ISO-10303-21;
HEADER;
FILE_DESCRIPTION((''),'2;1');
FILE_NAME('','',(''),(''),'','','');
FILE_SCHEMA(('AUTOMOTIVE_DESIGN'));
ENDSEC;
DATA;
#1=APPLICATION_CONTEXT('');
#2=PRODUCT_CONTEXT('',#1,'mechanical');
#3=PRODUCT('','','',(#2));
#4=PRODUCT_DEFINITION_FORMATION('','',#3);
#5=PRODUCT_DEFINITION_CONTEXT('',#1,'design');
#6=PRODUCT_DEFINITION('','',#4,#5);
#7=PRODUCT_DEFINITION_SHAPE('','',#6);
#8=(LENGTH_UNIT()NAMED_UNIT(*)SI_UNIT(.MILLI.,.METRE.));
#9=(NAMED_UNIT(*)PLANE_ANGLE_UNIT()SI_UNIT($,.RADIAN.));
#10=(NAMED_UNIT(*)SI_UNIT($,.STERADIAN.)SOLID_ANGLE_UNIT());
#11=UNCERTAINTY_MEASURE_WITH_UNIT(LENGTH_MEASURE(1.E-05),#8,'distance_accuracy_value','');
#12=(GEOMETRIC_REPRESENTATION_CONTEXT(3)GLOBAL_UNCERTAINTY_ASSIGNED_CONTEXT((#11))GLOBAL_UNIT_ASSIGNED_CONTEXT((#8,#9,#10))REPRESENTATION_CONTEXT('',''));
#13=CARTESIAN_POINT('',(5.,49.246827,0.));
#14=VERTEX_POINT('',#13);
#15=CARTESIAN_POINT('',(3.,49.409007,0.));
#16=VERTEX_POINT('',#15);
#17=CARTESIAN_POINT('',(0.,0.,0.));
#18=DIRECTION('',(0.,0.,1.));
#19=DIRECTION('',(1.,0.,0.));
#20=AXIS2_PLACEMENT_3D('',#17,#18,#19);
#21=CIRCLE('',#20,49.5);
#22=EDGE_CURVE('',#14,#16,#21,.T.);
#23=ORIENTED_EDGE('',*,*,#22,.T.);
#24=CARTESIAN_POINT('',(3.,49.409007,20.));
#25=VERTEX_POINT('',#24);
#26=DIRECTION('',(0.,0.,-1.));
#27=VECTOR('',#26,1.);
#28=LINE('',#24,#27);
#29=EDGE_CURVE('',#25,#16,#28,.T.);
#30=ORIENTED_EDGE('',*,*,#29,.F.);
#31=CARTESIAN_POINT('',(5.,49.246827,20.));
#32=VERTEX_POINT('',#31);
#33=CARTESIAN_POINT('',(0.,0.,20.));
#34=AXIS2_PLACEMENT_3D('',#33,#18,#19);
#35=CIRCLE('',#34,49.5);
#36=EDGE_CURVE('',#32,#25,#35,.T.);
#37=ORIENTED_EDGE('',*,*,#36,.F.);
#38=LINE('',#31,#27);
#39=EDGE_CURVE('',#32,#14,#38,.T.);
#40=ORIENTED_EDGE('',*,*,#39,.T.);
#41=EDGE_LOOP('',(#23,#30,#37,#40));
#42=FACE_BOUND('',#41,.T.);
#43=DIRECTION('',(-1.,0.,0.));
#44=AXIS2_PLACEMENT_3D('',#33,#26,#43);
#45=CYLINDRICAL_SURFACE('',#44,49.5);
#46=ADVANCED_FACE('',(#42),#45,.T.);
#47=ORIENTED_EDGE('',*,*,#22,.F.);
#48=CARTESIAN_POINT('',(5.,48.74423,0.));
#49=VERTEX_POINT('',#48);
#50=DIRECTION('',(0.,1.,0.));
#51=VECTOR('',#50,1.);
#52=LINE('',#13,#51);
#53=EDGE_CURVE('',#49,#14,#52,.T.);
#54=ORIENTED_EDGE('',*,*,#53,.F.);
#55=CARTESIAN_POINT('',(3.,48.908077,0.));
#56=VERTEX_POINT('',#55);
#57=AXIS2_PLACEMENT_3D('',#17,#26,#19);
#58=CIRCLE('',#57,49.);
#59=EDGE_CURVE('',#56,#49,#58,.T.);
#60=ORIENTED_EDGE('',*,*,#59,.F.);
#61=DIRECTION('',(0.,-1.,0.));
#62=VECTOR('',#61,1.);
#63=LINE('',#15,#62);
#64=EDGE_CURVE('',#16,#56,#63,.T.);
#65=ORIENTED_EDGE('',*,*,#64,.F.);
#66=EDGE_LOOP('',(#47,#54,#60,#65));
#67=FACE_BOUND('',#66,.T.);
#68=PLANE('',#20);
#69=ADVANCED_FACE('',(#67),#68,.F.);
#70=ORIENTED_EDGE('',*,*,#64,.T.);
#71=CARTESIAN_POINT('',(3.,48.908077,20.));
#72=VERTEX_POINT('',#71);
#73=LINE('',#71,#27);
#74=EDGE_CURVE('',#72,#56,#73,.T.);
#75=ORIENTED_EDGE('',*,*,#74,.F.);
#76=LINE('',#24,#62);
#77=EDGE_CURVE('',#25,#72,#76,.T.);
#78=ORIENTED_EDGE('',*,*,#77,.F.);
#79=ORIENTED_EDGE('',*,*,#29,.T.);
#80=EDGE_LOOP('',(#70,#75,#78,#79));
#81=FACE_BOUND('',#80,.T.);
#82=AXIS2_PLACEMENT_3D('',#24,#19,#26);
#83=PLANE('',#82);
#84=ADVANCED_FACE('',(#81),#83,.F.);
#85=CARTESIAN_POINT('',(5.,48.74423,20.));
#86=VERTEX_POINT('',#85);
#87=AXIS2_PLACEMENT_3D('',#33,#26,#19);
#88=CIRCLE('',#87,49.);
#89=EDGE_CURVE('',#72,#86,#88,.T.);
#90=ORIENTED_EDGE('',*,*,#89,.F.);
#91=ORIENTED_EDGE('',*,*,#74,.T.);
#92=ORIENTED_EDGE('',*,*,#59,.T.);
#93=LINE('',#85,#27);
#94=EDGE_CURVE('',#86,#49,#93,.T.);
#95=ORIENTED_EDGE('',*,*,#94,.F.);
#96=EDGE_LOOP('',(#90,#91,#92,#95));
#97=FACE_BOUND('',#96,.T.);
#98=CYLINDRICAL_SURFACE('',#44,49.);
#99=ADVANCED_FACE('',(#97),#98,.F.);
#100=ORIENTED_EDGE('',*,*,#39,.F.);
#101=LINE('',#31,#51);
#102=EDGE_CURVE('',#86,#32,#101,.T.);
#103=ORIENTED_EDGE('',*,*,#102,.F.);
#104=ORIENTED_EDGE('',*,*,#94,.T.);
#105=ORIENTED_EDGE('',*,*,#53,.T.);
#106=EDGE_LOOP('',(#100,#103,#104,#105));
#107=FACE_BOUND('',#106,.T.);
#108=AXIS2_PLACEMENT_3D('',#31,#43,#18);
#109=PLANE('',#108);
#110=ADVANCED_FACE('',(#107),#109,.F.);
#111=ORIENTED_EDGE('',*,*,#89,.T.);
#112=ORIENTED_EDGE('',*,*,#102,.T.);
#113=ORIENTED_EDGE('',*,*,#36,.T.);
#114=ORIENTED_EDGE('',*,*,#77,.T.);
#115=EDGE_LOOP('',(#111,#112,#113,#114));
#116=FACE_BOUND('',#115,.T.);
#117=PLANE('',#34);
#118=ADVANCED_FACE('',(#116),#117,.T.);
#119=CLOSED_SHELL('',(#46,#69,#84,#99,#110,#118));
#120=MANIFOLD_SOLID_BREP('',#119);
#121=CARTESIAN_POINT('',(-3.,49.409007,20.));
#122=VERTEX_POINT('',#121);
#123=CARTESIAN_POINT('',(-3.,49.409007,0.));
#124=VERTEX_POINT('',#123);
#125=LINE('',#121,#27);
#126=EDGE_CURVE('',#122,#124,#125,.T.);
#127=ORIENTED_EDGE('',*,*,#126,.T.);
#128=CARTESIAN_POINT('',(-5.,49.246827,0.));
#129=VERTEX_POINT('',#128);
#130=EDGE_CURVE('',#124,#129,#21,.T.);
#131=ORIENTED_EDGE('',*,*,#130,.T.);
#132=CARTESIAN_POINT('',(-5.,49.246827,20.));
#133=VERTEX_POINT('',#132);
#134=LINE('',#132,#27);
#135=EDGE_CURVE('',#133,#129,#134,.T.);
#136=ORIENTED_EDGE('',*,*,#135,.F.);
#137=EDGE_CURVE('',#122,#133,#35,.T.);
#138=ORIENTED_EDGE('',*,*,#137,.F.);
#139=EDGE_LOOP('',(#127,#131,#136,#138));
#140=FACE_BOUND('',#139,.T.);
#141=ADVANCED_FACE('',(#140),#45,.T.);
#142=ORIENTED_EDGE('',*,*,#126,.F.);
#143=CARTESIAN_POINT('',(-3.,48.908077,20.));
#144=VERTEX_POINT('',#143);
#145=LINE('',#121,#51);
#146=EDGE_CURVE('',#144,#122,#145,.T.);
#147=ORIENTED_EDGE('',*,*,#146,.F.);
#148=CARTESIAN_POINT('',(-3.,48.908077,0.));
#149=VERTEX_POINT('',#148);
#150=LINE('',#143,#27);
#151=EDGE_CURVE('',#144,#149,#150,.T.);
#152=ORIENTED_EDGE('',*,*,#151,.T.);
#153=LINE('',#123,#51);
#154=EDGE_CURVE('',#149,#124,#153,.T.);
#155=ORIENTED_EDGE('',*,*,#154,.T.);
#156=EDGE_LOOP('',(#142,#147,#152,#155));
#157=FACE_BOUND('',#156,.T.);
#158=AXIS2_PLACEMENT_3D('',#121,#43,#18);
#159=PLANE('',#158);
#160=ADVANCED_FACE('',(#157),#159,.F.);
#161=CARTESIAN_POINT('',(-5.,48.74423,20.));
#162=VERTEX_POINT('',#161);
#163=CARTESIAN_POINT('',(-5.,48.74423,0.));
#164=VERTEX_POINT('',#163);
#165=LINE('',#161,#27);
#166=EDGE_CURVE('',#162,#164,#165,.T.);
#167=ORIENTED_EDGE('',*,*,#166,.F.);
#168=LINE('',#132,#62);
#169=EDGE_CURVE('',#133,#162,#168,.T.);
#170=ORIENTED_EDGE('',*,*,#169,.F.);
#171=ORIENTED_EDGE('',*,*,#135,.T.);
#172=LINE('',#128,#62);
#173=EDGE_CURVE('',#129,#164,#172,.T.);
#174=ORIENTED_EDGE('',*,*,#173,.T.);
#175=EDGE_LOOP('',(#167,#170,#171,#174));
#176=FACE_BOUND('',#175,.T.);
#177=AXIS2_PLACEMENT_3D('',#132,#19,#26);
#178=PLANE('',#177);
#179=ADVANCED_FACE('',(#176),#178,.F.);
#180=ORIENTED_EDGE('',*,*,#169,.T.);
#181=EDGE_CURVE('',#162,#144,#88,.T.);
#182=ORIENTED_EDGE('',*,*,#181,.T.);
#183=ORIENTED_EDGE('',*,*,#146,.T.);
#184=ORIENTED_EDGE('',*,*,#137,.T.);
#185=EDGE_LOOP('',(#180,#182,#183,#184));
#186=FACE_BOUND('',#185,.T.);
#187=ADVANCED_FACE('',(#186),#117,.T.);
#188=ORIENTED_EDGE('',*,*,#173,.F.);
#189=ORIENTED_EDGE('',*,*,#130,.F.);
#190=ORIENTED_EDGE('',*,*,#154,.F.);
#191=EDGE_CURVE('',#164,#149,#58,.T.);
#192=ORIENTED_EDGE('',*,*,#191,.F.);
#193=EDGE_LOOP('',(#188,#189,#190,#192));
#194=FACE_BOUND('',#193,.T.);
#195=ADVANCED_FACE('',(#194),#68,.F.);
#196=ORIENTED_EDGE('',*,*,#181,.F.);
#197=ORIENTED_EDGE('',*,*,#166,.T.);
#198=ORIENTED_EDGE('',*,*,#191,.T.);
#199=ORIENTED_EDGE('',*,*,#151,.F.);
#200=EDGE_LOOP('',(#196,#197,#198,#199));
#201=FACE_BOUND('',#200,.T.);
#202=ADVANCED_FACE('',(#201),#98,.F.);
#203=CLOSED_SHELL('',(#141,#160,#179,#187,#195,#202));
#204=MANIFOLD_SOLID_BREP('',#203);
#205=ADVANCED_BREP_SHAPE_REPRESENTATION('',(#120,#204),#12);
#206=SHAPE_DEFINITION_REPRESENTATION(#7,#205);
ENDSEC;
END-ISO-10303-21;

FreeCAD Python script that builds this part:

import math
import FreeCAD as App
import Part
import Sketcher

V = App.Vector

doc = App.newDocument("Part")
body = doc.addObject("PartDesign::Body", "Body")

sketch1 = doc.addObject("Sketcher::SketchObject", "Sketch")
body.addObject(sketch1)
sketch1.AttachmentSupport = (doc.XY_Plane, [""])
sketch1.MapMode = "FlatFace"
sketch1.addGeometry(Part.LineSegment(V(5, 48.74423, 0), V(5, 49.246827, 0)), False)
sketch1.addGeometry(Part.ArcOfCircle(Part.Circle(V(0, -0.000001, 0), V(0, 0, 1), 49.500001), math.radians(84.20266), math.radians(86.525399)), False)
sketch1.addGeometry(Part.LineSegment(V(3, 49.409007, 0), V(3, 48.908077, 0)), False)
sketch1.addGeometry(Part.ArcOfCircle(Part.Circle(V(0, -0.000001, 0), V(0, 0, 1), 49.000001), math.radians(84.143298), math.radians(86.4899)), False)
sketch1.addConstraint(Sketcher.Constraint("Coincident", 0, 2, 1, 1))
sketch1.addConstraint(Sketcher.Constraint("Coincident", 1, 2, 2, 1))
sketch1.addConstraint(Sketcher.Constraint("Coincident", 2, 2, 3, 2))
sketch1.addConstraint(Sketcher.Constraint("Coincident", 3, 1, 0, 1))
sketch1.addConstraint(Sketcher.Constraint("Vertical", 0))
sketch1.addConstraint(Sketcher.Constraint("Vertical", 2))
sketch1.addConstraint(Sketcher.Constraint("Coincident", 1, 3, -1, 1))
sketch1.addConstraint(Sketcher.Constraint("Coincident", 3, 3, -1, 1))
sketch1.addConstraint(Sketcher.Constraint("Radius", 3, 49.000001))
sketch1.addConstraint(Sketcher.Constraint("Radius", 1, 49.500001))
sketch1.addConstraint(Sketcher.Constraint("DistanceX", -1, 1, 0, 2, 5.0))
sketch1.addConstraint(Sketcher.Constraint("DistanceX", -1, 1, 1, 2, 3.0))
pad1 = doc.addObject("PartDesign::Pad", "Pad")
body.addObject(pad1)
pad1.Profile = sketch1
pad1.Length = 20
body2 = doc.addObject("PartDesign::Body", "Body001")

sketch2 = doc.addObject("Sketcher::SketchObject", "Sketch001")
body2.addObject(sketch2)
sketch2.AttachmentSupport = (doc.getObject("XY_Plane001"), [""])
sketch2.MapMode = "FlatFace"
sketch2.addGeometry(Part.LineSegment(V(-3, 48.908077, 0), V(-3, 49.409007, 0)), False)
sketch2.addGeometry(Part.ArcOfCircle(Part.Circle(V(0, -0.000001, 0), V(0, 0, 1), 49.500001), math.radians(93.474601), math.radians(95.79734)), False)
sketch2.addGeometry(Part.LineSegment(V(-5, 49.246827, 0), V(-5, 48.74423, 0)), False)
sketch2.addGeometry(Part.ArcOfCircle(Part.Circle(V(0, -0.000001, 0), V(0, 0, 1), 49.000001), math.radians(93.5101), math.radians(95.856702)), False)
sketch2.addConstraint(Sketcher.Constraint("Coincident", 0, 2, 1, 1))
sketch2.addConstraint(Sketcher.Constraint("Coincident", 1, 2, 2, 1))
sketch2.addConstraint(Sketcher.Constraint("Coincident", 2, 2, 3, 2))
sketch2.addConstraint(Sketcher.Constraint("Coincident", 3, 1, 0, 1))
sketch2.addConstraint(Sketcher.Constraint("Vertical", 0))
sketch2.addConstraint(Sketcher.Constraint("Vertical", 2))
sketch2.addConstraint(Sketcher.Constraint("Coincident", 1, 3, -1, 1))
sketch2.addConstraint(Sketcher.Constraint("Coincident", 3, 3, -1, 1))
sketch2.addConstraint(Sketcher.Constraint("Radius", 3, 49.000001))
sketch2.addConstraint(Sketcher.Constraint("Radius", 1, 49.500001))
sketch2.addConstraint(Sketcher.Constraint("DistanceX", 0, 2, -1, 1, 3.0))
sketch2.addConstraint(Sketcher.Constraint("DistanceX", 1, 2, -1, 1, 5.0))
pad2 = doc.addObject("PartDesign::Pad", "Pad001")
body2.addObject(pad2)
pad2.Profile = sketch2
pad2.Length = 20

doc.recompute()
